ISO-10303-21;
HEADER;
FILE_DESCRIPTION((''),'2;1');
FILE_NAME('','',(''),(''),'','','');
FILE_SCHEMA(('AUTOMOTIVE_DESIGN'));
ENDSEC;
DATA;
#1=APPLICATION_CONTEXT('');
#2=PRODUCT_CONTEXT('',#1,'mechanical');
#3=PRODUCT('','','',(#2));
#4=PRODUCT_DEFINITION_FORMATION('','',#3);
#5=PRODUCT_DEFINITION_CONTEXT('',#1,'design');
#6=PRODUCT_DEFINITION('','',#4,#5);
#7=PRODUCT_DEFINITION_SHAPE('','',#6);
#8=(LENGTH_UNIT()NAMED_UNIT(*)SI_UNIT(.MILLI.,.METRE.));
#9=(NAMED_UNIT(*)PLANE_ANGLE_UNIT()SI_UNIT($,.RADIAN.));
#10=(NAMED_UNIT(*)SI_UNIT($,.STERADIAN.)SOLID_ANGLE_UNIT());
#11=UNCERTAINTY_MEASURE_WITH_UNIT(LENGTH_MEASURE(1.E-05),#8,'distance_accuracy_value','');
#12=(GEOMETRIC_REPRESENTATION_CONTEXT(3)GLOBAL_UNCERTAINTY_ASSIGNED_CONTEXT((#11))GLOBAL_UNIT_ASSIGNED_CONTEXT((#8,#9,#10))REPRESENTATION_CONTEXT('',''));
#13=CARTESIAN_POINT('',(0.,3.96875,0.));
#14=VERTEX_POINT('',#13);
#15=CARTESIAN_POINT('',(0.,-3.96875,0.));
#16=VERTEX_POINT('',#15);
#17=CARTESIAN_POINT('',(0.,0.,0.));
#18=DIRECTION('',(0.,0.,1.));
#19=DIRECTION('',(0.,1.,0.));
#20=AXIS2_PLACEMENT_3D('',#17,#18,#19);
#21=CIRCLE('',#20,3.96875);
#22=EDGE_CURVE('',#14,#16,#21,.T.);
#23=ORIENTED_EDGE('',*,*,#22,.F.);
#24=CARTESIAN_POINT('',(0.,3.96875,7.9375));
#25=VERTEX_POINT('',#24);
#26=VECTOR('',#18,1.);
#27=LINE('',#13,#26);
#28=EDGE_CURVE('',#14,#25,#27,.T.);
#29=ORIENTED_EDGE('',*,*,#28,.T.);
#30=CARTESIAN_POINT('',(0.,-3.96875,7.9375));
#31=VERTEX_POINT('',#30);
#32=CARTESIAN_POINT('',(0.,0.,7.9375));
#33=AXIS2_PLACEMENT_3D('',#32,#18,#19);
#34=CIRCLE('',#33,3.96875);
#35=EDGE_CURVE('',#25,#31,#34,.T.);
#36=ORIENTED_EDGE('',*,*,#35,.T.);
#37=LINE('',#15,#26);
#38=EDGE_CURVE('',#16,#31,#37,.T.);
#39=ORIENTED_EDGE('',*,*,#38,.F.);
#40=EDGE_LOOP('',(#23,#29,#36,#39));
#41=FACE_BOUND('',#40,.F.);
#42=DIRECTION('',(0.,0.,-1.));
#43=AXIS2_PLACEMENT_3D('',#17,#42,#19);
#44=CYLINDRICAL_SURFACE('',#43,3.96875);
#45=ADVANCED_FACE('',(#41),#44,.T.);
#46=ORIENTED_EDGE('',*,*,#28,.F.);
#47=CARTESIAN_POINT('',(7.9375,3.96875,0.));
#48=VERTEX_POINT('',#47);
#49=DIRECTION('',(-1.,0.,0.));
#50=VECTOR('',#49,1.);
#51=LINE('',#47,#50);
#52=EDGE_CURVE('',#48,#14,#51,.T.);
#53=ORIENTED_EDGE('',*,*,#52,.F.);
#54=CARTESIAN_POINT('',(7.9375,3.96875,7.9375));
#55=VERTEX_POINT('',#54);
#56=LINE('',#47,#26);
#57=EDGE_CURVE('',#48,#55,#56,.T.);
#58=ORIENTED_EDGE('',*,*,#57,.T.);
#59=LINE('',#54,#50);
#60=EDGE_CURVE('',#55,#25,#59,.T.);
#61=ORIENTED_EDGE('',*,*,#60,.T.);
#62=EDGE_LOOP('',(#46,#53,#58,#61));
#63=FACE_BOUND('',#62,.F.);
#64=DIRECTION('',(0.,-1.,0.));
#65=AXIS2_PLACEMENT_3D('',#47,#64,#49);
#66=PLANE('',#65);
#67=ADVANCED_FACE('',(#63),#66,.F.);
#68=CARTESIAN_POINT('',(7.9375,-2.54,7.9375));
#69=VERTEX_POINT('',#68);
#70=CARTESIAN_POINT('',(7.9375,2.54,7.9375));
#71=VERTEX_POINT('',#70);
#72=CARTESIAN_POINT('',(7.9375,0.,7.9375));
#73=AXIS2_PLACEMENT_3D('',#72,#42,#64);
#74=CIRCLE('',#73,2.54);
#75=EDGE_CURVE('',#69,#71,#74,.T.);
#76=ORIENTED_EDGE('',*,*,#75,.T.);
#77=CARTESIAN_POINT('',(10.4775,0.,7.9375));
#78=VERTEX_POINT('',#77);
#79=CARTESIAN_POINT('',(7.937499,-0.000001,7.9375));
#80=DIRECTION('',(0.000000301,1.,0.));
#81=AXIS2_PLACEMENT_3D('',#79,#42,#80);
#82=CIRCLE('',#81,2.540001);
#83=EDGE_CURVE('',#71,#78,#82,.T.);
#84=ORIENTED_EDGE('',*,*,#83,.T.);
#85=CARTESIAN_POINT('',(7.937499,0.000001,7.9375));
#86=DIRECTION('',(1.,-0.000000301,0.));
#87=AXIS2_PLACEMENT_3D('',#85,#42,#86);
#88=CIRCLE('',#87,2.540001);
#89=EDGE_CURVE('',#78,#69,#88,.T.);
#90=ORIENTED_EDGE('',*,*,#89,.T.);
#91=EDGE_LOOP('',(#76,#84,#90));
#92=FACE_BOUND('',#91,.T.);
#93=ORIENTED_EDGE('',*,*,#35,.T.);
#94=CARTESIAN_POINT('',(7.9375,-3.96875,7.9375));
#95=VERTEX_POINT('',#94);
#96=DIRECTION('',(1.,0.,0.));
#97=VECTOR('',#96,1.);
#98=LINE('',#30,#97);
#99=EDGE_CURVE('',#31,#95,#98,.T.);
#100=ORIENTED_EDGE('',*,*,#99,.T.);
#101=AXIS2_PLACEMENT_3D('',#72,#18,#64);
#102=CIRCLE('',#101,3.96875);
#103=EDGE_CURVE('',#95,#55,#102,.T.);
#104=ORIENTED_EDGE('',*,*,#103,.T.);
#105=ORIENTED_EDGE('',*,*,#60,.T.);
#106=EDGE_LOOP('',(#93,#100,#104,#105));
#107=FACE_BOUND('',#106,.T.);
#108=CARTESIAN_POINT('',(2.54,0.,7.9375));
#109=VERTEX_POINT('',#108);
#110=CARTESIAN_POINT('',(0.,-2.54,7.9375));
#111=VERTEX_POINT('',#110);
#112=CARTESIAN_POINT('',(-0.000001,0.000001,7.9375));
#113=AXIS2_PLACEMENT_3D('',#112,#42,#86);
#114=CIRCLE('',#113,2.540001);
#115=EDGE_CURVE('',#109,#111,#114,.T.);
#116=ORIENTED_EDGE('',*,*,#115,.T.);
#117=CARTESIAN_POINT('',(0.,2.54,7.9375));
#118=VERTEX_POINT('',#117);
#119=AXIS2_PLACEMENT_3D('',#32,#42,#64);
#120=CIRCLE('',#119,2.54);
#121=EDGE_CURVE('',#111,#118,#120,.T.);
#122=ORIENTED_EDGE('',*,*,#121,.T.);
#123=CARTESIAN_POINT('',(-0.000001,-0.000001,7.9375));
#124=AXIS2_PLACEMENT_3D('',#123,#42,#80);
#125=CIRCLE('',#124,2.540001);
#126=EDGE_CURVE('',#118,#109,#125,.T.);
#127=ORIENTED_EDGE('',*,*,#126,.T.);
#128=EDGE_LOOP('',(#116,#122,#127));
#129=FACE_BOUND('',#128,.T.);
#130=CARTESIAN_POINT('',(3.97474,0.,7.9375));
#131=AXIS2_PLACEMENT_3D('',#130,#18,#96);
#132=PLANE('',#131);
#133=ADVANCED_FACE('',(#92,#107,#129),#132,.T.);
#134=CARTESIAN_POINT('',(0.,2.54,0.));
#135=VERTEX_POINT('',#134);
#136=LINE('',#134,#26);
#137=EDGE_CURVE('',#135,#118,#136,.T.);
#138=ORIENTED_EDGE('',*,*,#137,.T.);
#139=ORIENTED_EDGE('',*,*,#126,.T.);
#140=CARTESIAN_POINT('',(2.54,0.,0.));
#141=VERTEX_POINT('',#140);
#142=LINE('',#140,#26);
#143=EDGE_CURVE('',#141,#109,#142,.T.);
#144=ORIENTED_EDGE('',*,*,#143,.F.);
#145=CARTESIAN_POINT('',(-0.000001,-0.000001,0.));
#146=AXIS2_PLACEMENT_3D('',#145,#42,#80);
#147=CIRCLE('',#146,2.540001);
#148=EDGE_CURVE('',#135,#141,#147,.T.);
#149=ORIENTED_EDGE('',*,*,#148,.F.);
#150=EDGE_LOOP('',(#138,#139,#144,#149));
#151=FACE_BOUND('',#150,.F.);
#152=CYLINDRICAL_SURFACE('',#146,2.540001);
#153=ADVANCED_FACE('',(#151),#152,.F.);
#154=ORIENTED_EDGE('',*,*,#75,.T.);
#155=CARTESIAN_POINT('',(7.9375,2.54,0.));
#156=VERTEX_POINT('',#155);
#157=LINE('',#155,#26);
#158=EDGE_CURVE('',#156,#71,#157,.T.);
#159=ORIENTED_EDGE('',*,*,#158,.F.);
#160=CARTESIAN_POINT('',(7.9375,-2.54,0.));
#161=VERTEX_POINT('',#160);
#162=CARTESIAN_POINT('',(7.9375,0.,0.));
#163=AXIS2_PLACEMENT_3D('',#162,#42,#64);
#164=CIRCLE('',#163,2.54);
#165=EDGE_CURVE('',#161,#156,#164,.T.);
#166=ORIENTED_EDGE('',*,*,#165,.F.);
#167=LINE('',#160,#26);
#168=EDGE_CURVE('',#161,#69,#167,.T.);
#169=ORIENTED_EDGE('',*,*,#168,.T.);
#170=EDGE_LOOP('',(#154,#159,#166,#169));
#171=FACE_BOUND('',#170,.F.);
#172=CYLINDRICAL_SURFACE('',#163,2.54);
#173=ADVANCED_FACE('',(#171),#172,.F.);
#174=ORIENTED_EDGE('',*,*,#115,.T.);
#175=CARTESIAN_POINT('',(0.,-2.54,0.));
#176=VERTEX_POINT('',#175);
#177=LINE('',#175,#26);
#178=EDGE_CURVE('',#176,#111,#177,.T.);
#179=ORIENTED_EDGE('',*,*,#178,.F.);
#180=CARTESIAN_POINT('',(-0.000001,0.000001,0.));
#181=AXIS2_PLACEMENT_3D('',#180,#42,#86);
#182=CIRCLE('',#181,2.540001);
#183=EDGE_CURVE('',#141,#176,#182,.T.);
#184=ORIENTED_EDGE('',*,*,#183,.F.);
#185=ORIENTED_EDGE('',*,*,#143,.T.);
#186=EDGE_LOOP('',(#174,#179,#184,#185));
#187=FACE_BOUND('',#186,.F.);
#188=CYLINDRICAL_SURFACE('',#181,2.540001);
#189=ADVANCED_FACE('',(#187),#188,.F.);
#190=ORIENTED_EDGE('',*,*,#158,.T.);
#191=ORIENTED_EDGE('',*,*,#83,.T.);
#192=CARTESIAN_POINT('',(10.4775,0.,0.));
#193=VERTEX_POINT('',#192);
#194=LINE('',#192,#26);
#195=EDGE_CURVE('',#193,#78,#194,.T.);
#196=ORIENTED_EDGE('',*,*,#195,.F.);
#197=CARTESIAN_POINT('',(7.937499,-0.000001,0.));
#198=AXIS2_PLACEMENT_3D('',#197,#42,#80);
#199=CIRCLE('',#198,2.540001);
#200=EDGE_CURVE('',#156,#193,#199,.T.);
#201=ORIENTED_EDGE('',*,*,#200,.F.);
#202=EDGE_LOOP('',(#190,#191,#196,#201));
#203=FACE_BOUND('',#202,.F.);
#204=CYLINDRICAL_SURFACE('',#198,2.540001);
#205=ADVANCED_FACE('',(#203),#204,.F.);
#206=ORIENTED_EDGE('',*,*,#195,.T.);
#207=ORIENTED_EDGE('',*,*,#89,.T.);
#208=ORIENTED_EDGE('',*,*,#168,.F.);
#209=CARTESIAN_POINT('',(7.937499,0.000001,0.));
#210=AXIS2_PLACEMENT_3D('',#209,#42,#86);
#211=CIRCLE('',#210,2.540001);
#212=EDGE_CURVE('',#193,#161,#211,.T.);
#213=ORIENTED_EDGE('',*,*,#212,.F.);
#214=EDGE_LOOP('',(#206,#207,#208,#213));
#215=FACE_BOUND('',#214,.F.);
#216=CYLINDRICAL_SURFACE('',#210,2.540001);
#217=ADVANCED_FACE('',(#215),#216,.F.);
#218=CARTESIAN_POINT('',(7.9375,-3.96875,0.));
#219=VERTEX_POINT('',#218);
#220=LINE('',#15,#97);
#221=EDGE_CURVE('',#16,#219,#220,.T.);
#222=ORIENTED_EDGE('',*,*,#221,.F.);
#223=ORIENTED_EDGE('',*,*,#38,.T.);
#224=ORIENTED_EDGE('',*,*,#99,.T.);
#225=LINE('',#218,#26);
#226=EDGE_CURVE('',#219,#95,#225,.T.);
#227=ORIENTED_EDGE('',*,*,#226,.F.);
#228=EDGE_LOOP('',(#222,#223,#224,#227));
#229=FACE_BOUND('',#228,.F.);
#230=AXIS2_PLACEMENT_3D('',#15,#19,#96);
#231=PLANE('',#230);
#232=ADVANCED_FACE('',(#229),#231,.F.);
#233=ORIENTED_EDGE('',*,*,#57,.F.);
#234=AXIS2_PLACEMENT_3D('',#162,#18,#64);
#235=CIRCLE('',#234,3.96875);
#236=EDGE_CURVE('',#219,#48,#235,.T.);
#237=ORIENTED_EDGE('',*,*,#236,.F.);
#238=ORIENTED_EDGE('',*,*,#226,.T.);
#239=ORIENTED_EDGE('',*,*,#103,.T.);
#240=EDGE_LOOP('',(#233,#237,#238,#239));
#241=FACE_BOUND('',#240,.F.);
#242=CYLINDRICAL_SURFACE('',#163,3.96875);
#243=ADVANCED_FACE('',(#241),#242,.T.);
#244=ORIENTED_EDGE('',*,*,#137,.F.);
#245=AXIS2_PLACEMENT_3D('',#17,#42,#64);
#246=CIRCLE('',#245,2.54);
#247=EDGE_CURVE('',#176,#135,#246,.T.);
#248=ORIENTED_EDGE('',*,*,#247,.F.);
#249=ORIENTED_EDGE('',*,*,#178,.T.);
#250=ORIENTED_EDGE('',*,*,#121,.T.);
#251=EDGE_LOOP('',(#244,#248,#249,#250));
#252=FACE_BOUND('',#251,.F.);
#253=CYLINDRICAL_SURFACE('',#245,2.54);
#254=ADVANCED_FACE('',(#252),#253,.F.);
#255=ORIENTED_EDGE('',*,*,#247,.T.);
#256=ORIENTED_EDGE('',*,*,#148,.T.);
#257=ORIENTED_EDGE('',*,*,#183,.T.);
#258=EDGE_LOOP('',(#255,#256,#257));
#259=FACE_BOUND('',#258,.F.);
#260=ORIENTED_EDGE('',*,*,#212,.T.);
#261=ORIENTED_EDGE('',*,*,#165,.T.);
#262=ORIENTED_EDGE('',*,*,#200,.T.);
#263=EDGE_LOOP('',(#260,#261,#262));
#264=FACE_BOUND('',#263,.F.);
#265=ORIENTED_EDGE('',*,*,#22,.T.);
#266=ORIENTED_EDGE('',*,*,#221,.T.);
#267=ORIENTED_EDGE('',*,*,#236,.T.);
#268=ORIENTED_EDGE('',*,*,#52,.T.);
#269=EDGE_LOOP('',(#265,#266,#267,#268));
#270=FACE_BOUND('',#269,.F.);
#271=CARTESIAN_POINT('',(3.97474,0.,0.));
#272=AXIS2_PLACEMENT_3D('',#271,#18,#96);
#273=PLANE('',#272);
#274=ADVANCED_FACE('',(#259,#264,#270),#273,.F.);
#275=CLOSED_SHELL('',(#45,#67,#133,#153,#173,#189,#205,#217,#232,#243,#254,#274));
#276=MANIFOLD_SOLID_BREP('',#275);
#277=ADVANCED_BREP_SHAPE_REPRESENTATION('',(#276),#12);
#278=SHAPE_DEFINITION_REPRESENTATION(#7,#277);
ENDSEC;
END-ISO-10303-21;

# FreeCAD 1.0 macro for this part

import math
import FreeCAD as App
import Part
import Sketcher

V = App.Vector
Q = App.Units.Quantity

doc = App.newDocument("Part")
body = doc.addObject("PartDesign::Body", "Body")

sketch1 = body.newObject("Sketcher::SketchObject", "Sketch")
sketch1.AttachmentSupport = (doc.getObject("XY_Plane"), [""])
sketch1.MapMode = "FlatFace"
sketch1.addGeometry(Part.LineSegment(V(7.9, 4, 0), V(0, 4, 0)), False)
sketch1.addGeometry(Part.ArcOfCircle(Part.Circle(V(0, 0, 0), V(0, 0, 1), 4), math.radians(90), math.radians(270)), False)
sketch1.addGeometry(Part.LineSegment(V(0, -4, 0), V(7.9, -4, 0)), False)
sketch1.addGeometry(Part.ArcOfCircle(Part.Circle(V(7.9, 0, 0), V(0, 0, 1), 4), math.radians(-90), math.radians(90)), False)
sketch1.addGeometry(Part.ArcOfCircle(Part.Circle(V(7.9, 0, 0), V(0, 0, 1), 2.5), math.radians(90), math.radians(270)), False)
sketch1.addGeometry(Part.ArcOfCircle(Part.Circle(V(7.9, 0, 0), V(0, 0, 1), 2.5), math.radians(0), math.radians(90)), False)
sketch1.addGeometry(Part.ArcOfCircle(Part.Circle(V(7.9, 0, 0), V(0, 0, 1), 2.5), math.radians(-90), math.radians(0)), False)
sketch1.addGeometry(Part.ArcOfCircle(Part.Circle(V(0, 0, 0), V(0, 0, 1), 2.5), math.radians(0), math.radians(90)), False)
sketch1.addGeometry(Part.ArcOfCircle(Part.Circle(V(0, 0, 0), V(0, 0, 1), 2.5), math.radians(-90), math.radians(0)), False)
sketch1.addGeometry(Part.ArcOfCircle(Part.Circle(V(0, 0, 0), V(0, 0, 1), 2.5), math.radians(90), math.radians(270)), False)
sketch1.addConstraint(Sketcher.Constraint("Tangent", 0, 2, 1, 1))
sketch1.addConstraint(Sketcher.Constraint("Tangent", 1, 2, 2, 1))
sketch1.addConstraint(Sketcher.Constraint("Tangent", 2, 2, 3, 1))
sketch1.addConstraint(Sketcher.Constraint("Tangent", 3, 2, 0, 1))
sketch1.addConstraint(Sketcher.Constraint("Tangent", 4, 1, 5, 2))
sketch1.addConstraint(Sketcher.Constraint("Tangent", 5, 1, 6, 2))
sketch1.addConstraint(Sketcher.Constraint("Tangent", 6, 1, 4, 2))
sketch1.addConstraint(Sketcher.Constraint("Tangent", 7, 1, 8, 2))
sketch1.addConstraint(Sketcher.Constraint("Tangent", 8, 1, 9, 2))
sketch1.addConstraint(Sketcher.Constraint("Tangent", 9, 1, 7, 2))
sketch1.addConstraint(Sketcher.Constraint("Horizontal", 0))
sketch1.addConstraint(Sketcher.Constraint("Horizontal", 2))
sketch1.addConstraint(Sketcher.Constraint("Coincident", 1, 3, -1, 1))
sketch1.addConstraint(Sketcher.Constraint("Coincident", 7, 3, -1, 1))
sketch1.addConstraint(Sketcher.Constraint("Coincident", 4, 3, 3, 3))
sketch1.addConstraint(Sketcher.Constraint("Equal", 6, 7))
sketch1.addConstraint(Sketcher.Constraint("PointOnObject", 5, 1, -1))
sketch1.addConstraint(Sketcher.Constraint("PointOnObject", 7, 1, -1))
sketch1.addConstraint(Sketcher.Constraint("PointOnObject", 8, 1, -2))
sketch1.addConstraint(Sketcher.Constraint("PointOnObject", 9, 1, -2))
sketch1.addConstraint(Sketcher.Constraint("Vertical", 3, 2, 4, 1))
sketch1.addConstraint(Sketcher.Constraint("Vertical", 4, 1, 6, 1))
sketch1.addConstraint(Sketcher.Constraint("Radius", 4, Q("0.1 in")))
sketch1.addConstraint(Sketcher.Constraint("Radius", 1, Q("0.15625 in")))
sketch1.addConstraint(Sketcher.Constraint("DistanceX", 0, 2, 0, 1, Q("0.3125 in")))
pad1 = body.newObject("PartDesign::Pad", "Pad")
pad1.Profile = sketch1
pad1.Length = Q("0.3125 in")

doc.recompute()
